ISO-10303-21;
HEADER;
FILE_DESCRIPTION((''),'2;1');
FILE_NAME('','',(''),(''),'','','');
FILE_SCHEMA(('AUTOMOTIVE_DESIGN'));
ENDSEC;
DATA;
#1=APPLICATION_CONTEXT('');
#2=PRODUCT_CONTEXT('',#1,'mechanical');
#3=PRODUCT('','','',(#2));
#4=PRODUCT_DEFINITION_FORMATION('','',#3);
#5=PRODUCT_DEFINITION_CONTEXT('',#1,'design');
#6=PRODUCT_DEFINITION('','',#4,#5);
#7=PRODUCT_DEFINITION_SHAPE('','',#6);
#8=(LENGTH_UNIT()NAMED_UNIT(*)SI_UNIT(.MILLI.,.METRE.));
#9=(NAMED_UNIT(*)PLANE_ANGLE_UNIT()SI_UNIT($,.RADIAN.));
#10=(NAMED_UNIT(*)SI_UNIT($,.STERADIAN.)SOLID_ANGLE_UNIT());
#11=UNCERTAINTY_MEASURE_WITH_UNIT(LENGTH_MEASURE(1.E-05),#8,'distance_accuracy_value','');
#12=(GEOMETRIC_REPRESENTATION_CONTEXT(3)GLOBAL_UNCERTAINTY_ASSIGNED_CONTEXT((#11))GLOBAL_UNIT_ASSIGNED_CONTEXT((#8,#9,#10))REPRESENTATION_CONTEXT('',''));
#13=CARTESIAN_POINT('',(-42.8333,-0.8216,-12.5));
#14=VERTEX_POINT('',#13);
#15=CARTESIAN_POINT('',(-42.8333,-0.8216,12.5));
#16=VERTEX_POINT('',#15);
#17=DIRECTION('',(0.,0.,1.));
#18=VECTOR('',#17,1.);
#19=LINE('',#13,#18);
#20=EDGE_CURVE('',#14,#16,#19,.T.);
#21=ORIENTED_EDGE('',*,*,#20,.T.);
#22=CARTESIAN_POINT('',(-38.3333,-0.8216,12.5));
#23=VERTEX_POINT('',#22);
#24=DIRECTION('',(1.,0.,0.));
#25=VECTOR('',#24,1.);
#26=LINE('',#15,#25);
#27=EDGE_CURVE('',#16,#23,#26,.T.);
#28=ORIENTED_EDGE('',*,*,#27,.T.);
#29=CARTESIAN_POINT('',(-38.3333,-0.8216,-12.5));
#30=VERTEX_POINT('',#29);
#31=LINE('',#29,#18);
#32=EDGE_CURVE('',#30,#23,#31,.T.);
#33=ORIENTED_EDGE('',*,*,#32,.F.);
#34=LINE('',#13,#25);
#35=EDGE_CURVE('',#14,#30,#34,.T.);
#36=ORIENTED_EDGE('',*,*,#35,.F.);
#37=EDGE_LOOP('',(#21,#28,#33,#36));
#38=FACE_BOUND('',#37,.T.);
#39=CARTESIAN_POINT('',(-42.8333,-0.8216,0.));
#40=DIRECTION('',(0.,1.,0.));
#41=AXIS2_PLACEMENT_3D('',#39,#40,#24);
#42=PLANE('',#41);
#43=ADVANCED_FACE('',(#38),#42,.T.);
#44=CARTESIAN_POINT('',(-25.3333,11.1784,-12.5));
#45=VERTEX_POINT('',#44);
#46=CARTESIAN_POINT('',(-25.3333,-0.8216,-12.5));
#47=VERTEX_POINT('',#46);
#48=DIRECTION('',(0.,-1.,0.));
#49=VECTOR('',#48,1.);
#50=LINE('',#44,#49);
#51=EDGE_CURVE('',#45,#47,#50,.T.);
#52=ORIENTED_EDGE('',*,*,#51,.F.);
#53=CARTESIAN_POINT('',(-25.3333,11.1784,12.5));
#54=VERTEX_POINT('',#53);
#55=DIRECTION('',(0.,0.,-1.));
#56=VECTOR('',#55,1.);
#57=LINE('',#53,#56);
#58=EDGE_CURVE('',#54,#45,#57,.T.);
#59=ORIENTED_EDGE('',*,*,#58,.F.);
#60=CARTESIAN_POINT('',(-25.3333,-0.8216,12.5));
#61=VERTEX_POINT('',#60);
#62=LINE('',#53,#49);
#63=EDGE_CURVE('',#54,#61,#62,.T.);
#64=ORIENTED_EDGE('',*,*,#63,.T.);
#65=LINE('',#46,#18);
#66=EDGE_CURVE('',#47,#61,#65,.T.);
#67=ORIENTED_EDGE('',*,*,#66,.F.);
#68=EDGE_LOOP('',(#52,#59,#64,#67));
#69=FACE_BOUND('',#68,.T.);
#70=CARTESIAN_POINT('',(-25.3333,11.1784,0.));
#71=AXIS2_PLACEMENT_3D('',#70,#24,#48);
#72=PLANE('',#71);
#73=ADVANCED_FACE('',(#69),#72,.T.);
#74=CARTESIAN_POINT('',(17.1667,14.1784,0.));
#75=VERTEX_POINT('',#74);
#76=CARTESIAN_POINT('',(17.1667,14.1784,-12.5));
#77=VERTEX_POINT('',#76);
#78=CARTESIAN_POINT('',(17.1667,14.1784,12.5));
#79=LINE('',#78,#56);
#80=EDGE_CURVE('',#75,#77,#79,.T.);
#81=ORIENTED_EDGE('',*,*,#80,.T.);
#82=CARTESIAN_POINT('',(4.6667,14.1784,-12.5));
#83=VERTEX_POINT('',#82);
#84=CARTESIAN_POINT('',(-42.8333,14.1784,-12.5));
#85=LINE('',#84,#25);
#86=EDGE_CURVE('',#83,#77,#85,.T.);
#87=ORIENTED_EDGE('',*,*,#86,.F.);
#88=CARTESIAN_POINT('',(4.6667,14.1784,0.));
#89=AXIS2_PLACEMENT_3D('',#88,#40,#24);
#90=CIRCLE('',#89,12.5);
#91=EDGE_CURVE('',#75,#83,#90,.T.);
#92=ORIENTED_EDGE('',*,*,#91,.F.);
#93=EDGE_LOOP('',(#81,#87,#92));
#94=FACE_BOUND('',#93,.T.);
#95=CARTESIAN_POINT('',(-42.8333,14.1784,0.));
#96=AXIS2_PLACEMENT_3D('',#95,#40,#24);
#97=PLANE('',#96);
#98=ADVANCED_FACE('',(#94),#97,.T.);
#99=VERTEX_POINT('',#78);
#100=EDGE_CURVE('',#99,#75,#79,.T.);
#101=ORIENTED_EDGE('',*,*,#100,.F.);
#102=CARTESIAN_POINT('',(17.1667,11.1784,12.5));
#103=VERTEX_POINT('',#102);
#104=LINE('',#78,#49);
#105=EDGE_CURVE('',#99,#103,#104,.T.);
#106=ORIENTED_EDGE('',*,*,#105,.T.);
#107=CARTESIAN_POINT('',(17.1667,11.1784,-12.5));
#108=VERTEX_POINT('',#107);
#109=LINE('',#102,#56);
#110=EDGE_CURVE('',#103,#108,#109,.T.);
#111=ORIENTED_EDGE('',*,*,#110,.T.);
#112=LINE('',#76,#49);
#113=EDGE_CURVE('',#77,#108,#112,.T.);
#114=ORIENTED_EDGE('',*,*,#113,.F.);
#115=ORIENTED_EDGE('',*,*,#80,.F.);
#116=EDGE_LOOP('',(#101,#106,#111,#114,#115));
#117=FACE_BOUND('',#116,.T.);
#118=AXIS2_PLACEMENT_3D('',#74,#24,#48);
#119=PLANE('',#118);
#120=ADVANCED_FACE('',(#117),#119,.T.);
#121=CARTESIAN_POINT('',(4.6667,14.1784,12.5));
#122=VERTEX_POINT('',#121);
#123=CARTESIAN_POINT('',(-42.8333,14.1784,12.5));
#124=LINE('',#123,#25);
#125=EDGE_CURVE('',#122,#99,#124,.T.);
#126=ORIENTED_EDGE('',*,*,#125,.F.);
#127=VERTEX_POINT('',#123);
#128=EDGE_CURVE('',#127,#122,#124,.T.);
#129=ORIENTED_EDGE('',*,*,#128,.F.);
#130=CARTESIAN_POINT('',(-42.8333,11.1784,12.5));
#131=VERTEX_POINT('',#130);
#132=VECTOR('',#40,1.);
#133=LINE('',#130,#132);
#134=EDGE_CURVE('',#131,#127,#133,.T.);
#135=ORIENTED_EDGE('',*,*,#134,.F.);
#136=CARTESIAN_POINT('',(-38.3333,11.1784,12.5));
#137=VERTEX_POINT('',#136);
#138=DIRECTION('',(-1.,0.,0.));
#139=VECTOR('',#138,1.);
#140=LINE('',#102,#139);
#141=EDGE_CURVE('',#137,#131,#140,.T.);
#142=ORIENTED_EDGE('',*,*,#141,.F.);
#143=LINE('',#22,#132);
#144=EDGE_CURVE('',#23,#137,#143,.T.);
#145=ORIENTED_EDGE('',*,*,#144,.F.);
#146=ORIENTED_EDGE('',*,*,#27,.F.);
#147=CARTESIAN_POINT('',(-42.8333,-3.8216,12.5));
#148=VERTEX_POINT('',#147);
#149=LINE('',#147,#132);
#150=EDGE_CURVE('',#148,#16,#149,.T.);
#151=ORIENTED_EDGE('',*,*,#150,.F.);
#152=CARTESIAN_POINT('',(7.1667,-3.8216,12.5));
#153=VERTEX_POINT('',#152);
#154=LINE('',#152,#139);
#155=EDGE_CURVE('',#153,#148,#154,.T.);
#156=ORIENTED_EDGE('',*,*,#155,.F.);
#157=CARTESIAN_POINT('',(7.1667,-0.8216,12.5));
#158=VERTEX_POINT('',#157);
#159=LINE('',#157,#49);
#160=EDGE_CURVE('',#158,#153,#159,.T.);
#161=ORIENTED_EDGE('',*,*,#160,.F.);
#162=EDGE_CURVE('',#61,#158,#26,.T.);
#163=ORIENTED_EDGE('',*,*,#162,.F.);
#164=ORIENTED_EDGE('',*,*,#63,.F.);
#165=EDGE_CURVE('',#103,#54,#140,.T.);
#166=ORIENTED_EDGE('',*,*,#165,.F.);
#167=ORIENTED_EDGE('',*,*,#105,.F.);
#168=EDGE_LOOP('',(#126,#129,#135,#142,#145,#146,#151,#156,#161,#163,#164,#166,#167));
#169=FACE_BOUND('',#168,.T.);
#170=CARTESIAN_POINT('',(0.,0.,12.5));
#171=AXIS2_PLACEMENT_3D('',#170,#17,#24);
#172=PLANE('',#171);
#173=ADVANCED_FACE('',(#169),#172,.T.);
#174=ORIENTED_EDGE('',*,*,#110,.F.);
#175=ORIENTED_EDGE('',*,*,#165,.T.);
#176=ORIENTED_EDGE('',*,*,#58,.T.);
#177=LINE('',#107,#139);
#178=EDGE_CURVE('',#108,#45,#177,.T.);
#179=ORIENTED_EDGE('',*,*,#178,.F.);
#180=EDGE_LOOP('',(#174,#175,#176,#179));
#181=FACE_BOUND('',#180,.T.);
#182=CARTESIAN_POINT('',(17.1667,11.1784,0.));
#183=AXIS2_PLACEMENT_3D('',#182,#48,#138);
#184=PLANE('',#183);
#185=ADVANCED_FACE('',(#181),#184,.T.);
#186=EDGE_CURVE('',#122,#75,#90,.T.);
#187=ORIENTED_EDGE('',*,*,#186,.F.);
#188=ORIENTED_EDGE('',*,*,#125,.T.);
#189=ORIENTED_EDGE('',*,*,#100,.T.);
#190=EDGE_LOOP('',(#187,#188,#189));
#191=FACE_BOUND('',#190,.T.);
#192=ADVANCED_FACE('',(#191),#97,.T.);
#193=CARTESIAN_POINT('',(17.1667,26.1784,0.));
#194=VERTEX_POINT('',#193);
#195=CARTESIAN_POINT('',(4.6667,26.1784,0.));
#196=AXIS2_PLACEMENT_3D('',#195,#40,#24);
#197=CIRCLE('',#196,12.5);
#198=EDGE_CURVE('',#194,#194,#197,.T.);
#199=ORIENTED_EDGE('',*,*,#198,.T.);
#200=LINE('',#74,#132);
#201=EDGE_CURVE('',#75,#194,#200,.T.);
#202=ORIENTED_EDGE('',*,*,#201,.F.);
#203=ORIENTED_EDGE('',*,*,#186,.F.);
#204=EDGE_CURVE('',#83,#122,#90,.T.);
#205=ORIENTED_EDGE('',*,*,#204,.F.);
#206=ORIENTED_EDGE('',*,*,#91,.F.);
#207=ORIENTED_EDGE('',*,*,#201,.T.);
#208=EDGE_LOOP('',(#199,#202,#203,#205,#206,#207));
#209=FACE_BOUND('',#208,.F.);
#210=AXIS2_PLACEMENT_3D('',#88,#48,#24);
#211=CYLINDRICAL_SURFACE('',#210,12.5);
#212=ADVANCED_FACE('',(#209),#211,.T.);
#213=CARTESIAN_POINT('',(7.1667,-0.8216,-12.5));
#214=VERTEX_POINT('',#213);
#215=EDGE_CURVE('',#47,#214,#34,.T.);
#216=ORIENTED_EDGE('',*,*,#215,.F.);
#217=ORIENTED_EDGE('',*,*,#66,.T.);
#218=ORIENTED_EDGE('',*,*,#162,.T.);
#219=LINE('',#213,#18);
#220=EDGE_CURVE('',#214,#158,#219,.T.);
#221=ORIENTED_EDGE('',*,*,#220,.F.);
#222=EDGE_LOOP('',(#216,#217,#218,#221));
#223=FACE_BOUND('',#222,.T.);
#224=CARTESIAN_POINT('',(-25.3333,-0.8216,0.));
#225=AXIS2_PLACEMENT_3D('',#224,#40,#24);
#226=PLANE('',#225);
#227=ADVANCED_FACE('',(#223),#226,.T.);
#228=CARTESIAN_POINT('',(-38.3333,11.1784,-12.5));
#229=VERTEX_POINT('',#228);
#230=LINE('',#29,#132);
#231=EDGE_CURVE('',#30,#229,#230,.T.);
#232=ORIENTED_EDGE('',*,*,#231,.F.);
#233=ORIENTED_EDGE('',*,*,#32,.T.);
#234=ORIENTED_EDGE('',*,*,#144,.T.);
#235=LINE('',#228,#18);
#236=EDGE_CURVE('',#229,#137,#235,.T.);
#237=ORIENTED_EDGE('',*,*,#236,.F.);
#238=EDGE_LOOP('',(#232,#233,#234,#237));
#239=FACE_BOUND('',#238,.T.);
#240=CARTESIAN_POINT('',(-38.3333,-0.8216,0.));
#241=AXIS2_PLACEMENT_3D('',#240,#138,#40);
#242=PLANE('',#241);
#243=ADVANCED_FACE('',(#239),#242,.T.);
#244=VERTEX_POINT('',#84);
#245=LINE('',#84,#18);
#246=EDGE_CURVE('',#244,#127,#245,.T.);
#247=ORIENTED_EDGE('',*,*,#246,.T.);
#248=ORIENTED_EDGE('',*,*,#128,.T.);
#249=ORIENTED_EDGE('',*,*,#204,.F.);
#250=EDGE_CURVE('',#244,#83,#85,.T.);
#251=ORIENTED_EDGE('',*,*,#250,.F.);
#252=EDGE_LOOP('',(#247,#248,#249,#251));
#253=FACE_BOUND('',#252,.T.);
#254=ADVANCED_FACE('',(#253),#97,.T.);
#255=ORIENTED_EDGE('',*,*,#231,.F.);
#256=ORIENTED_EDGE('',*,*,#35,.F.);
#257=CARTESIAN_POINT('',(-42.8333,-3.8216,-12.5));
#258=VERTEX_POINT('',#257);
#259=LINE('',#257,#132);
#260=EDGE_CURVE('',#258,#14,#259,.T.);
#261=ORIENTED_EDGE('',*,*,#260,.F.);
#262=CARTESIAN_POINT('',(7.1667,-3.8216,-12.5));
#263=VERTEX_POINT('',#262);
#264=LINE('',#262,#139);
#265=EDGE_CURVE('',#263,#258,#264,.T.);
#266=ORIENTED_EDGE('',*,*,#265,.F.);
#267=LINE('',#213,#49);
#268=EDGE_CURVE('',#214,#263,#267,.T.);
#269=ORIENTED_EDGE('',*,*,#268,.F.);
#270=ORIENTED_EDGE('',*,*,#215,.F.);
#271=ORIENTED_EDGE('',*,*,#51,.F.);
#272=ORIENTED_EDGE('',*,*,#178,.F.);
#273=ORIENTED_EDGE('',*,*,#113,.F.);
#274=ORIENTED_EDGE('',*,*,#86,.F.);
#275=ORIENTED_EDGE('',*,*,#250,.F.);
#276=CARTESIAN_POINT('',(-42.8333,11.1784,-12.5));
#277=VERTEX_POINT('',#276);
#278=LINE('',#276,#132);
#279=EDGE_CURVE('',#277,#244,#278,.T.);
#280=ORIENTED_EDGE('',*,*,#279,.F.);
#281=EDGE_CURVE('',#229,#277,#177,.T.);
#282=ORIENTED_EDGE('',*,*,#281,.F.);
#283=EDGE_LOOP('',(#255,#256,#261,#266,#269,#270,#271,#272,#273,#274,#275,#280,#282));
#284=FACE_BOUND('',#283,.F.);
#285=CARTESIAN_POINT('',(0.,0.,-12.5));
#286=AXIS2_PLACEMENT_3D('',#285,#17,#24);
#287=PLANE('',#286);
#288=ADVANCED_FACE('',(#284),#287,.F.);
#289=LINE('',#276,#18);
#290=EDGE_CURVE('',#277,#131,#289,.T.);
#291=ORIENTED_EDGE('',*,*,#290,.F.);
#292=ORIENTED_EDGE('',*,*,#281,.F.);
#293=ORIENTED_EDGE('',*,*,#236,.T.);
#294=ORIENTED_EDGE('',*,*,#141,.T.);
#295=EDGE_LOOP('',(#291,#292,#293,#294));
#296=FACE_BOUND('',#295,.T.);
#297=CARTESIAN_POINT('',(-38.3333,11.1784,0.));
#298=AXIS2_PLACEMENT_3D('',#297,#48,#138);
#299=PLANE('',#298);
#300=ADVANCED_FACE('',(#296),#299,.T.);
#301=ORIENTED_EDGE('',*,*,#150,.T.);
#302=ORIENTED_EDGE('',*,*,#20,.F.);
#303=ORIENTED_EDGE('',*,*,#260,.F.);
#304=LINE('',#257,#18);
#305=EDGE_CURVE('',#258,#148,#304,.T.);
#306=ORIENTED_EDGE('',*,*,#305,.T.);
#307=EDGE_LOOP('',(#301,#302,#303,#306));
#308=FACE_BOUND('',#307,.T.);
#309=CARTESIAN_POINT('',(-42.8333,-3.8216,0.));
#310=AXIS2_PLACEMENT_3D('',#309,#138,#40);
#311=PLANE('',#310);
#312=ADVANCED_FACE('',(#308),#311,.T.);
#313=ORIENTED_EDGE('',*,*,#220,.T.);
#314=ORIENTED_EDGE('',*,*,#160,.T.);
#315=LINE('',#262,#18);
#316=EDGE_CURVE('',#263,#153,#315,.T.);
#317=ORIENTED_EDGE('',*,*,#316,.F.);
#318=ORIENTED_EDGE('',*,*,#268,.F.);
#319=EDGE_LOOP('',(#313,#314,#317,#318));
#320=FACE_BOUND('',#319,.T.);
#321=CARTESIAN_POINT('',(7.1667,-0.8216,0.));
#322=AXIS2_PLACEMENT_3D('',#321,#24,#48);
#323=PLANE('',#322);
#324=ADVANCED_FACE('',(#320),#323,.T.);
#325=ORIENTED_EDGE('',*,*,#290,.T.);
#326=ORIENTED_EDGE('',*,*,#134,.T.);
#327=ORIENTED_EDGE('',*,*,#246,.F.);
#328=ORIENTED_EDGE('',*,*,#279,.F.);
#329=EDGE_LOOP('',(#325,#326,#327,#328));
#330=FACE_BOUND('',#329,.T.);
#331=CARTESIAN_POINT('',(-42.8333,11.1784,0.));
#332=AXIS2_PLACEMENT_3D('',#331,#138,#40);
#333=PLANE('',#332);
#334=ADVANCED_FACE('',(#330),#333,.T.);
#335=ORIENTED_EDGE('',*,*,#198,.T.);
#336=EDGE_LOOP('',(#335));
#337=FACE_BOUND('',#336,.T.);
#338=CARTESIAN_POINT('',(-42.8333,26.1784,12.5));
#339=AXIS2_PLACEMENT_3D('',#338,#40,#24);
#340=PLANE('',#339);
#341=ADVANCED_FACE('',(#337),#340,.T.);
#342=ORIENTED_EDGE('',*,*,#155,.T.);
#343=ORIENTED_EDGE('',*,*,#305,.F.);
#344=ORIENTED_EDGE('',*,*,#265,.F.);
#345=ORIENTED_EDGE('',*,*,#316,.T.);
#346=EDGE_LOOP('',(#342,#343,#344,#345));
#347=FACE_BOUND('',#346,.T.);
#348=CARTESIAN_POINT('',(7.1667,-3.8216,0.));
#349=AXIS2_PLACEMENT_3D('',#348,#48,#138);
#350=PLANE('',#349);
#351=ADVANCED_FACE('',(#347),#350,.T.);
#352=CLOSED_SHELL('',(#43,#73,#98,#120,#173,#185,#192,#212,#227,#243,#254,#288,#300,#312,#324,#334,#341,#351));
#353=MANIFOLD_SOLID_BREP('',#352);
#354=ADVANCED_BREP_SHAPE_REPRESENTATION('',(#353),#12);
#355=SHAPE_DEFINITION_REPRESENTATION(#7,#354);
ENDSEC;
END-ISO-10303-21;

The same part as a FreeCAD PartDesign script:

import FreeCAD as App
import Part
import Sketcher

V = App.Vector
Q = App.Units.Quantity

doc = App.newDocument("Part")
body = doc.addObject("PartDesign::Body", "Body")

# Sketch on XY plane
sketch1 = body.newObject("Sketcher::SketchObject", "Sketch")
sketch1.AttachmentSupport = (doc.getObject("XY_Plane"), [""])
sketch1.MapMode = "FlatFace"
sketch1.addGeometry(Part.LineSegment(V(17.1667, 14.1784, 0), V(-42.8333, 14.1784, 0)), False)
sketch1.addGeometry(Part.LineSegment(V(-42.8333, 14.1784, 0), V(-42.8333, 11.1784, 0)), False)
sketch1.addGeometry(Part.LineSegment(V(-42.8333, 11.1784, 0), V(-38.3333, 11.1784, 0)), False)
sketch1.addGeometry(Part.LineSegment(V(-38.3333, 11.1784, 0), V(-38.3333, -0.8216, 0)), False)
sketch1.addGeometry(Part.LineSegment(V(-38.3333, -0.8216, 0), V(-42.8333, -0.8216, 0)), False)
sketch1.addGeometry(Part.LineSegment(V(-42.8333, -0.8216, 0), V(-42.8333, -3.8216, 0)), False)
sketch1.addGeometry(Part.LineSegment(V(-42.8333, -3.8216, 0), V(7.1667, -3.8216, 0)), False)
sketch1.addGeometry(Part.LineSegment(V(7.1667, -3.8216, 0), V(7.1667, -0.8216, 0)), False)
sketch1.addGeometry(Part.LineSegment(V(7.1667, -0.8216, 0), V(-25.3333, -0.8216, 0)), False)
sketch1.addGeometry(Part.LineSegment(V(-25.3333, -0.8216, 0), V(-25.3333, 11.1784, 0)), False)
sketch1.addGeometry(Part.LineSegment(V(-25.3333, 11.1784, 0), V(17.1667, 11.1784, 0)), False)
sketch1.addGeometry(Part.LineSegment(V(17.1667, 11.1784, 0), V(17.1667, 14.1784, 0)), False)
sketch1.addConstraint(Sketcher.Constraint("Coincident", 0, 2, 1, 1))
sketch1.addConstraint(Sketcher.Constraint("Coincident", 1, 2, 2, 1))
sketch1.addConstraint(Sketcher.Constraint("Coincident", 2, 2, 3, 1))
sketch1.addConstraint(Sketcher.Constraint("Coincident", 3, 2, 4, 1))
sketch1.addConstraint(Sketcher.Constraint("Coincident", 4, 2, 5, 1))
sketch1.addConstraint(Sketcher.Constraint("Coincident", 5, 2, 6, 1))
sketch1.addConstraint(Sketcher.Constraint("Coincident", 6, 2, 7, 1))
sketch1.addConstraint(Sketcher.Constraint("Coincident", 7, 2, 8, 1))
sketch1.addConstraint(Sketcher.Constraint("Coincident", 8, 2, 9, 1))
sketch1.addConstraint(Sketcher.Constraint("Coincident", 9, 2, 10, 1))
sketch1.addConstraint(Sketcher.Constraint("Coincident", 10, 2, 11, 1))
sketch1.addConstraint(Sketcher.Constraint("Coincident", 11, 2, 0, 1))
sketch1.addConstraint(Sketcher.Constraint("Horizontal", 0))
sketch1.addConstraint(Sketcher.Constraint("Vertical", 1))
sketch1.addConstraint(Sketcher.Constraint("Horizontal", 2))
sketch1.addConstraint(Sketcher.Constraint("Vertical", 3))
sketch1.addConstraint(Sketcher.Constraint("Horizontal", 4))
sketch1.addConstraint(Sketcher.Constraint("Vertical", 5))
sketch1.addConstraint(Sketcher.Constraint("Horizontal", 6))
sketch1.addConstraint(Sketcher.Constraint("Vertical", 7))
sketch1.addConstraint(Sketcher.Constraint("Horizontal", 8))
sketch1.addConstraint(Sketcher.Constraint("Vertical", 9))
sketch1.addConstraint(Sketcher.Constraint("Horizontal", 10))
sketch1.addConstraint(Sketcher.Constraint("Vertical", 11))
sketch1.addConstraint(Sketcher.Constraint("Horizontal", 4, 2, 7, 2))
sketch1.addConstraint(Sketcher.Constraint("Horizontal", 2, 2, 9, 2))
sketch1.addConstraint(Sketcher.Constraint("Vertical", 1, 2, 4, 2))
sketch1.addConstraint(Sketcher.Constraint("Equal", 1, 5))
sketch1.addConstraint(Sketcher.Constraint("DistanceX", 0, 2, 0, 1, Q("60 mm")))
sketch1.addConstraint(Sketcher.Constraint("DistanceX", 6, 1, 6, 2, Q("50 mm")))
sketch1.addConstraint(Sketcher.Constraint("DistanceY", 1, 2, 1, 1, Q("3 mm")))
sketch1.addConstraint(Sketcher.Constraint("DistanceY", 3, 2, 3, 1, Q("12 mm")))
sketch1.addConstraint(Sketcher.Constraint("DistanceX", 2, 1, 2, 2, Q("4.5 mm")))
sketch1.addConstraint(Sketcher.Constraint("DistanceX", 3, 2, 8, 2, Q("13 mm")))
sketch1.addConstraint(Sketcher.Constraint("DistanceX", 0, 2, -1, 1, Q("42.8333 mm")))
sketch1.addConstraint(Sketcher.Constraint("DistanceY", -1, 1, 0, 2, Q("14.1784 mm")))
pad1 = body.newObject("PartDesign::Pad", "Pad")
pad1.Profile = sketch1
pad1.Length = 25
pad1.Midplane = True

# Sketch on XZ plane
sketch2 = body.newObject("Sketcher::SketchObject", "Sketch001")
sketch2.AttachmentSupport = (doc.getObject("XZ_Plane"), [""])
sketch2.MapMode = "FlatFace"
sketch2.AttachmentOffset = App.Placement(V(0, 0, -14.1784), App.Rotation())
sketch2.addGeometry(Part.Circle(V(4.6667, 0, 0), V(0, 0, 1), 12.5), False)
sketch2.addConstraint(Sketcher.Constraint("PointOnObject", 0, 3, -1))
sketch2.addConstraint(Sketcher.Constraint("Diameter", 0, Q("25 mm")))
sketch2.addConstraint(Sketcher.Constraint("DistanceX", -1, 1, 0, 3, Q("4.6667 mm")))
pad2 = body.newObject("PartDesign::Pad", "Pad001")
pad2.Profile = sketch2
pad2.Length = 12
pad2.Reversed = True

doc.recompute()
